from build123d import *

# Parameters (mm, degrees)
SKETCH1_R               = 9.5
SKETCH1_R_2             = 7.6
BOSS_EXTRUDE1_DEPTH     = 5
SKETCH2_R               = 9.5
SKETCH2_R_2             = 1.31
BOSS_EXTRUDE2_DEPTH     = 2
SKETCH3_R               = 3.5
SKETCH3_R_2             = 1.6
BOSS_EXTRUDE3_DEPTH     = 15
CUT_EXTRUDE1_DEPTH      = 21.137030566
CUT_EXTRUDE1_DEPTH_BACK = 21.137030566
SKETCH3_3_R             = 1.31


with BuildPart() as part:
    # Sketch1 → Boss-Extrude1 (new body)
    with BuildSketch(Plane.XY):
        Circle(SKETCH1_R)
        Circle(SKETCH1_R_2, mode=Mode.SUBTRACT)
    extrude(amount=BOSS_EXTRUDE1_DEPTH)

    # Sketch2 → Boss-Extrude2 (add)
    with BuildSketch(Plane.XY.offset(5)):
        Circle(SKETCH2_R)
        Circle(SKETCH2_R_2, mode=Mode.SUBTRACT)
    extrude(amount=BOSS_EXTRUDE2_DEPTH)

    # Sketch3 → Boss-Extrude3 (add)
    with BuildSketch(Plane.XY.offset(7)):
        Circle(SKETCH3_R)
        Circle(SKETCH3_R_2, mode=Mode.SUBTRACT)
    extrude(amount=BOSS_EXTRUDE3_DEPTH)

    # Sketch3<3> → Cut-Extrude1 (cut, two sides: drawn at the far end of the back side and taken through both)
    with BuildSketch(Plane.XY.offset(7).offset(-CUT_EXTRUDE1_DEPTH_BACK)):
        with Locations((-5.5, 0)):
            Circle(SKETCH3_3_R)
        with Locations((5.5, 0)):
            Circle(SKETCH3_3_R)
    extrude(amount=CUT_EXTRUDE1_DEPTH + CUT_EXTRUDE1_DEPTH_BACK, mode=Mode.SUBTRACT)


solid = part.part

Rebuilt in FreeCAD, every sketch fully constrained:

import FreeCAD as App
import Part
import Sketcher
Q = App.Units.Quantity

doc = App.newDocument("Part")
params = doc.addObject("Spreadsheet::Sheet", "Params")
for row, (alias, value) in enumerate([
    ("sketch1_diameter", "19 mm"),
    ("sketch1_diameter2", "15.2 mm"),
    ("pad1_length", "5 mm"),
    ("sketch2_diameter", "19 mm"),
    ("sketch2_diameter2", "2.62 mm"),
    ("pad2_length", "2 mm"),
    ("sketch3_diameter", "7 mm"),
    ("sketch3_diameter2", "3.2 mm"),
    ("pad3_length", "15 mm"),
    ("sketch4_diameter", "2.62 mm"),
], start=1):
    params.set(f"A{row}", alias)
    params.set(f"B{row}", "=" + value)
    params.setAlias(f"B{row}", alias)

body = doc.addObject("PartDesign::Body", "Body")

# Sketch on XY plane
sketch1 = body.newObject("Sketcher::SketchObject", "Sketch")
sketch1.AttachmentSupport = (doc.getObject("XY_Plane"), [""])
sketch1.MapMode = "FlatFace"
sketch1.addGeometry([
    Part.Circle(App.Vector(0, 0, 0), App.Vector(0, 0, 1), 10),
    Part.Circle(App.Vector(0, 0, 0), App.Vector(0, 0, 1), 8),
], False)
sketch1.addConstraint([
    Sketcher.Constraint("Coincident", 0, 3, -1, 1),
    Sketcher.Constraint("Coincident", 1, 3, -1, 1),
    Sketcher.Constraint("Diameter", 0, Q("19 mm")),
    Sketcher.Constraint("Diameter", 1, Q("15.2 mm")),
])
sketch1.setExpression("Constraints[2]", "Params.sketch1_diameter")
sketch1.setExpression("Constraints[3]", "Params.sketch1_diameter2")
pad1 = body.newObject("PartDesign::Pad", "Pad")
pad1.Profile = sketch1
pad1.setExpression("Length", "Params.pad1_length")

# Sketch on XY plane
sketch2 = body.newObject("Sketcher::SketchObject", "Sketch001")
sketch2.AttachmentSupport = (doc.getObject("XY_Plane"), [""])
sketch2.MapMode = "FlatFace"
sketch2.AttachmentOffset = App.Placement(App.Vector(0, 0, 5), App.Rotation())
sketch2.addGeometry([
    Part.Circle(App.Vector(0, 0, 0), App.Vector(0, 0, 1), 9.5),
    Part.Circle(App.Vector(0, 0, 0), App.Vector(0, 0, 1), 1.3),
], False)
sketch2.addConstraint([
    Sketcher.Constraint("Coincident", 0, 3, -1, 1),
    Sketcher.Constraint("Coincident", 1, 3, -1, 1),
    Sketcher.Constraint("Diameter", 0, Q("19 mm")),
    Sketcher.Constraint("Diameter", 1, Q("2.62 mm")),
])
sketch2.setExpression("Constraints[2]", "Params.sketch2_diameter")
sketch2.setExpression("Constraints[3]", "Params.sketch2_diameter2")
pad2 = body.newObject("PartDesign::Pad", "Pad001")
pad2.Profile = sketch2
pad2.setExpression("Length", "Params.pad2_length")

# Sketch on XY plane
sketch3 = body.newObject("Sketcher::SketchObject", "Sketch002")
sketch3.AttachmentSupport = (doc.getObject("XY_Plane"), [""])
sketch3.MapMode = "FlatFace"
sketch3.AttachmentOffset = App.Placement(App.Vector(0, 0, 7), App.Rotation())
sketch3.addGeometry([
    Part.Circle(App.Vector(0, 0, 0), App.Vector(0, 0, 1), 3.5),
    Part.Circle(App.Vector(0, 0, 0), App.Vector(0, 0, 1), 1.6),
], False)
sketch3.addConstraint([
    Sketcher.Constraint("Coincident", 0, 3, -1, 1),
    Sketcher.Constraint("Coincident", 1, 3, -1, 1),
    Sketcher.Constraint("Diameter", 0, Q("7 mm")),
    Sketcher.Constraint("Diameter", 1, Q("3.2 mm")),
])
sketch3.setExpression("Constraints[2]", "Params.sketch3_diameter")
sketch3.setExpression("Constraints[3]", "Params.sketch3_diameter2")
pad3 = body.newObject("PartDesign::Pad", "Pad002")
pad3.Profile = sketch3
pad3.setExpression("Length", "Params.pad3_length")

# Sketch on XY plane
sketch4 = body.newObject("Sketcher::SketchObject", "Sketch003")
sketch4.AttachmentSupport = (doc.getObject("XY_Plane"), [""])
sketch4.MapMode = "FlatFace"
sketch4.AttachmentOffset = App.Placement(App.Vector(0, 0, 7), App.Rotation())
sketch4.addGeometry([
    Part.Circle(App.Vector(-5.5, 0, 0), App.Vector(0, 0, 1), 1.3),
    Part.Circle(App.Vector(5.5, 0, 0), App.Vector(0, 0, 1), 1.3),
], False)
sketch4.addConstraint([
    Sketcher.Constraint("Equal", 0, 1),
    Sketcher.Constraint("Symmetric", 0, 3, 1, 3, -1, 1),
    Sketcher.Constraint("PointOnObject", 0, 3, -1),
    Sketcher.Constraint("Diameter", 0, Q("2.62 mm")),
    Sketcher.Constraint("DistanceX", 0, 3, 1, 3, Q("11 mm")),
])
sketch4.setExpression("Constraints[3]", "Params.sketch4_diameter")
pocket1 = body.newObject("PartDesign::Pocket", "Pocket")
pocket1.Profile = sketch4
pocket1.Type = "ThroughAll"
pocket1.Midplane = True

doc.recompute()
